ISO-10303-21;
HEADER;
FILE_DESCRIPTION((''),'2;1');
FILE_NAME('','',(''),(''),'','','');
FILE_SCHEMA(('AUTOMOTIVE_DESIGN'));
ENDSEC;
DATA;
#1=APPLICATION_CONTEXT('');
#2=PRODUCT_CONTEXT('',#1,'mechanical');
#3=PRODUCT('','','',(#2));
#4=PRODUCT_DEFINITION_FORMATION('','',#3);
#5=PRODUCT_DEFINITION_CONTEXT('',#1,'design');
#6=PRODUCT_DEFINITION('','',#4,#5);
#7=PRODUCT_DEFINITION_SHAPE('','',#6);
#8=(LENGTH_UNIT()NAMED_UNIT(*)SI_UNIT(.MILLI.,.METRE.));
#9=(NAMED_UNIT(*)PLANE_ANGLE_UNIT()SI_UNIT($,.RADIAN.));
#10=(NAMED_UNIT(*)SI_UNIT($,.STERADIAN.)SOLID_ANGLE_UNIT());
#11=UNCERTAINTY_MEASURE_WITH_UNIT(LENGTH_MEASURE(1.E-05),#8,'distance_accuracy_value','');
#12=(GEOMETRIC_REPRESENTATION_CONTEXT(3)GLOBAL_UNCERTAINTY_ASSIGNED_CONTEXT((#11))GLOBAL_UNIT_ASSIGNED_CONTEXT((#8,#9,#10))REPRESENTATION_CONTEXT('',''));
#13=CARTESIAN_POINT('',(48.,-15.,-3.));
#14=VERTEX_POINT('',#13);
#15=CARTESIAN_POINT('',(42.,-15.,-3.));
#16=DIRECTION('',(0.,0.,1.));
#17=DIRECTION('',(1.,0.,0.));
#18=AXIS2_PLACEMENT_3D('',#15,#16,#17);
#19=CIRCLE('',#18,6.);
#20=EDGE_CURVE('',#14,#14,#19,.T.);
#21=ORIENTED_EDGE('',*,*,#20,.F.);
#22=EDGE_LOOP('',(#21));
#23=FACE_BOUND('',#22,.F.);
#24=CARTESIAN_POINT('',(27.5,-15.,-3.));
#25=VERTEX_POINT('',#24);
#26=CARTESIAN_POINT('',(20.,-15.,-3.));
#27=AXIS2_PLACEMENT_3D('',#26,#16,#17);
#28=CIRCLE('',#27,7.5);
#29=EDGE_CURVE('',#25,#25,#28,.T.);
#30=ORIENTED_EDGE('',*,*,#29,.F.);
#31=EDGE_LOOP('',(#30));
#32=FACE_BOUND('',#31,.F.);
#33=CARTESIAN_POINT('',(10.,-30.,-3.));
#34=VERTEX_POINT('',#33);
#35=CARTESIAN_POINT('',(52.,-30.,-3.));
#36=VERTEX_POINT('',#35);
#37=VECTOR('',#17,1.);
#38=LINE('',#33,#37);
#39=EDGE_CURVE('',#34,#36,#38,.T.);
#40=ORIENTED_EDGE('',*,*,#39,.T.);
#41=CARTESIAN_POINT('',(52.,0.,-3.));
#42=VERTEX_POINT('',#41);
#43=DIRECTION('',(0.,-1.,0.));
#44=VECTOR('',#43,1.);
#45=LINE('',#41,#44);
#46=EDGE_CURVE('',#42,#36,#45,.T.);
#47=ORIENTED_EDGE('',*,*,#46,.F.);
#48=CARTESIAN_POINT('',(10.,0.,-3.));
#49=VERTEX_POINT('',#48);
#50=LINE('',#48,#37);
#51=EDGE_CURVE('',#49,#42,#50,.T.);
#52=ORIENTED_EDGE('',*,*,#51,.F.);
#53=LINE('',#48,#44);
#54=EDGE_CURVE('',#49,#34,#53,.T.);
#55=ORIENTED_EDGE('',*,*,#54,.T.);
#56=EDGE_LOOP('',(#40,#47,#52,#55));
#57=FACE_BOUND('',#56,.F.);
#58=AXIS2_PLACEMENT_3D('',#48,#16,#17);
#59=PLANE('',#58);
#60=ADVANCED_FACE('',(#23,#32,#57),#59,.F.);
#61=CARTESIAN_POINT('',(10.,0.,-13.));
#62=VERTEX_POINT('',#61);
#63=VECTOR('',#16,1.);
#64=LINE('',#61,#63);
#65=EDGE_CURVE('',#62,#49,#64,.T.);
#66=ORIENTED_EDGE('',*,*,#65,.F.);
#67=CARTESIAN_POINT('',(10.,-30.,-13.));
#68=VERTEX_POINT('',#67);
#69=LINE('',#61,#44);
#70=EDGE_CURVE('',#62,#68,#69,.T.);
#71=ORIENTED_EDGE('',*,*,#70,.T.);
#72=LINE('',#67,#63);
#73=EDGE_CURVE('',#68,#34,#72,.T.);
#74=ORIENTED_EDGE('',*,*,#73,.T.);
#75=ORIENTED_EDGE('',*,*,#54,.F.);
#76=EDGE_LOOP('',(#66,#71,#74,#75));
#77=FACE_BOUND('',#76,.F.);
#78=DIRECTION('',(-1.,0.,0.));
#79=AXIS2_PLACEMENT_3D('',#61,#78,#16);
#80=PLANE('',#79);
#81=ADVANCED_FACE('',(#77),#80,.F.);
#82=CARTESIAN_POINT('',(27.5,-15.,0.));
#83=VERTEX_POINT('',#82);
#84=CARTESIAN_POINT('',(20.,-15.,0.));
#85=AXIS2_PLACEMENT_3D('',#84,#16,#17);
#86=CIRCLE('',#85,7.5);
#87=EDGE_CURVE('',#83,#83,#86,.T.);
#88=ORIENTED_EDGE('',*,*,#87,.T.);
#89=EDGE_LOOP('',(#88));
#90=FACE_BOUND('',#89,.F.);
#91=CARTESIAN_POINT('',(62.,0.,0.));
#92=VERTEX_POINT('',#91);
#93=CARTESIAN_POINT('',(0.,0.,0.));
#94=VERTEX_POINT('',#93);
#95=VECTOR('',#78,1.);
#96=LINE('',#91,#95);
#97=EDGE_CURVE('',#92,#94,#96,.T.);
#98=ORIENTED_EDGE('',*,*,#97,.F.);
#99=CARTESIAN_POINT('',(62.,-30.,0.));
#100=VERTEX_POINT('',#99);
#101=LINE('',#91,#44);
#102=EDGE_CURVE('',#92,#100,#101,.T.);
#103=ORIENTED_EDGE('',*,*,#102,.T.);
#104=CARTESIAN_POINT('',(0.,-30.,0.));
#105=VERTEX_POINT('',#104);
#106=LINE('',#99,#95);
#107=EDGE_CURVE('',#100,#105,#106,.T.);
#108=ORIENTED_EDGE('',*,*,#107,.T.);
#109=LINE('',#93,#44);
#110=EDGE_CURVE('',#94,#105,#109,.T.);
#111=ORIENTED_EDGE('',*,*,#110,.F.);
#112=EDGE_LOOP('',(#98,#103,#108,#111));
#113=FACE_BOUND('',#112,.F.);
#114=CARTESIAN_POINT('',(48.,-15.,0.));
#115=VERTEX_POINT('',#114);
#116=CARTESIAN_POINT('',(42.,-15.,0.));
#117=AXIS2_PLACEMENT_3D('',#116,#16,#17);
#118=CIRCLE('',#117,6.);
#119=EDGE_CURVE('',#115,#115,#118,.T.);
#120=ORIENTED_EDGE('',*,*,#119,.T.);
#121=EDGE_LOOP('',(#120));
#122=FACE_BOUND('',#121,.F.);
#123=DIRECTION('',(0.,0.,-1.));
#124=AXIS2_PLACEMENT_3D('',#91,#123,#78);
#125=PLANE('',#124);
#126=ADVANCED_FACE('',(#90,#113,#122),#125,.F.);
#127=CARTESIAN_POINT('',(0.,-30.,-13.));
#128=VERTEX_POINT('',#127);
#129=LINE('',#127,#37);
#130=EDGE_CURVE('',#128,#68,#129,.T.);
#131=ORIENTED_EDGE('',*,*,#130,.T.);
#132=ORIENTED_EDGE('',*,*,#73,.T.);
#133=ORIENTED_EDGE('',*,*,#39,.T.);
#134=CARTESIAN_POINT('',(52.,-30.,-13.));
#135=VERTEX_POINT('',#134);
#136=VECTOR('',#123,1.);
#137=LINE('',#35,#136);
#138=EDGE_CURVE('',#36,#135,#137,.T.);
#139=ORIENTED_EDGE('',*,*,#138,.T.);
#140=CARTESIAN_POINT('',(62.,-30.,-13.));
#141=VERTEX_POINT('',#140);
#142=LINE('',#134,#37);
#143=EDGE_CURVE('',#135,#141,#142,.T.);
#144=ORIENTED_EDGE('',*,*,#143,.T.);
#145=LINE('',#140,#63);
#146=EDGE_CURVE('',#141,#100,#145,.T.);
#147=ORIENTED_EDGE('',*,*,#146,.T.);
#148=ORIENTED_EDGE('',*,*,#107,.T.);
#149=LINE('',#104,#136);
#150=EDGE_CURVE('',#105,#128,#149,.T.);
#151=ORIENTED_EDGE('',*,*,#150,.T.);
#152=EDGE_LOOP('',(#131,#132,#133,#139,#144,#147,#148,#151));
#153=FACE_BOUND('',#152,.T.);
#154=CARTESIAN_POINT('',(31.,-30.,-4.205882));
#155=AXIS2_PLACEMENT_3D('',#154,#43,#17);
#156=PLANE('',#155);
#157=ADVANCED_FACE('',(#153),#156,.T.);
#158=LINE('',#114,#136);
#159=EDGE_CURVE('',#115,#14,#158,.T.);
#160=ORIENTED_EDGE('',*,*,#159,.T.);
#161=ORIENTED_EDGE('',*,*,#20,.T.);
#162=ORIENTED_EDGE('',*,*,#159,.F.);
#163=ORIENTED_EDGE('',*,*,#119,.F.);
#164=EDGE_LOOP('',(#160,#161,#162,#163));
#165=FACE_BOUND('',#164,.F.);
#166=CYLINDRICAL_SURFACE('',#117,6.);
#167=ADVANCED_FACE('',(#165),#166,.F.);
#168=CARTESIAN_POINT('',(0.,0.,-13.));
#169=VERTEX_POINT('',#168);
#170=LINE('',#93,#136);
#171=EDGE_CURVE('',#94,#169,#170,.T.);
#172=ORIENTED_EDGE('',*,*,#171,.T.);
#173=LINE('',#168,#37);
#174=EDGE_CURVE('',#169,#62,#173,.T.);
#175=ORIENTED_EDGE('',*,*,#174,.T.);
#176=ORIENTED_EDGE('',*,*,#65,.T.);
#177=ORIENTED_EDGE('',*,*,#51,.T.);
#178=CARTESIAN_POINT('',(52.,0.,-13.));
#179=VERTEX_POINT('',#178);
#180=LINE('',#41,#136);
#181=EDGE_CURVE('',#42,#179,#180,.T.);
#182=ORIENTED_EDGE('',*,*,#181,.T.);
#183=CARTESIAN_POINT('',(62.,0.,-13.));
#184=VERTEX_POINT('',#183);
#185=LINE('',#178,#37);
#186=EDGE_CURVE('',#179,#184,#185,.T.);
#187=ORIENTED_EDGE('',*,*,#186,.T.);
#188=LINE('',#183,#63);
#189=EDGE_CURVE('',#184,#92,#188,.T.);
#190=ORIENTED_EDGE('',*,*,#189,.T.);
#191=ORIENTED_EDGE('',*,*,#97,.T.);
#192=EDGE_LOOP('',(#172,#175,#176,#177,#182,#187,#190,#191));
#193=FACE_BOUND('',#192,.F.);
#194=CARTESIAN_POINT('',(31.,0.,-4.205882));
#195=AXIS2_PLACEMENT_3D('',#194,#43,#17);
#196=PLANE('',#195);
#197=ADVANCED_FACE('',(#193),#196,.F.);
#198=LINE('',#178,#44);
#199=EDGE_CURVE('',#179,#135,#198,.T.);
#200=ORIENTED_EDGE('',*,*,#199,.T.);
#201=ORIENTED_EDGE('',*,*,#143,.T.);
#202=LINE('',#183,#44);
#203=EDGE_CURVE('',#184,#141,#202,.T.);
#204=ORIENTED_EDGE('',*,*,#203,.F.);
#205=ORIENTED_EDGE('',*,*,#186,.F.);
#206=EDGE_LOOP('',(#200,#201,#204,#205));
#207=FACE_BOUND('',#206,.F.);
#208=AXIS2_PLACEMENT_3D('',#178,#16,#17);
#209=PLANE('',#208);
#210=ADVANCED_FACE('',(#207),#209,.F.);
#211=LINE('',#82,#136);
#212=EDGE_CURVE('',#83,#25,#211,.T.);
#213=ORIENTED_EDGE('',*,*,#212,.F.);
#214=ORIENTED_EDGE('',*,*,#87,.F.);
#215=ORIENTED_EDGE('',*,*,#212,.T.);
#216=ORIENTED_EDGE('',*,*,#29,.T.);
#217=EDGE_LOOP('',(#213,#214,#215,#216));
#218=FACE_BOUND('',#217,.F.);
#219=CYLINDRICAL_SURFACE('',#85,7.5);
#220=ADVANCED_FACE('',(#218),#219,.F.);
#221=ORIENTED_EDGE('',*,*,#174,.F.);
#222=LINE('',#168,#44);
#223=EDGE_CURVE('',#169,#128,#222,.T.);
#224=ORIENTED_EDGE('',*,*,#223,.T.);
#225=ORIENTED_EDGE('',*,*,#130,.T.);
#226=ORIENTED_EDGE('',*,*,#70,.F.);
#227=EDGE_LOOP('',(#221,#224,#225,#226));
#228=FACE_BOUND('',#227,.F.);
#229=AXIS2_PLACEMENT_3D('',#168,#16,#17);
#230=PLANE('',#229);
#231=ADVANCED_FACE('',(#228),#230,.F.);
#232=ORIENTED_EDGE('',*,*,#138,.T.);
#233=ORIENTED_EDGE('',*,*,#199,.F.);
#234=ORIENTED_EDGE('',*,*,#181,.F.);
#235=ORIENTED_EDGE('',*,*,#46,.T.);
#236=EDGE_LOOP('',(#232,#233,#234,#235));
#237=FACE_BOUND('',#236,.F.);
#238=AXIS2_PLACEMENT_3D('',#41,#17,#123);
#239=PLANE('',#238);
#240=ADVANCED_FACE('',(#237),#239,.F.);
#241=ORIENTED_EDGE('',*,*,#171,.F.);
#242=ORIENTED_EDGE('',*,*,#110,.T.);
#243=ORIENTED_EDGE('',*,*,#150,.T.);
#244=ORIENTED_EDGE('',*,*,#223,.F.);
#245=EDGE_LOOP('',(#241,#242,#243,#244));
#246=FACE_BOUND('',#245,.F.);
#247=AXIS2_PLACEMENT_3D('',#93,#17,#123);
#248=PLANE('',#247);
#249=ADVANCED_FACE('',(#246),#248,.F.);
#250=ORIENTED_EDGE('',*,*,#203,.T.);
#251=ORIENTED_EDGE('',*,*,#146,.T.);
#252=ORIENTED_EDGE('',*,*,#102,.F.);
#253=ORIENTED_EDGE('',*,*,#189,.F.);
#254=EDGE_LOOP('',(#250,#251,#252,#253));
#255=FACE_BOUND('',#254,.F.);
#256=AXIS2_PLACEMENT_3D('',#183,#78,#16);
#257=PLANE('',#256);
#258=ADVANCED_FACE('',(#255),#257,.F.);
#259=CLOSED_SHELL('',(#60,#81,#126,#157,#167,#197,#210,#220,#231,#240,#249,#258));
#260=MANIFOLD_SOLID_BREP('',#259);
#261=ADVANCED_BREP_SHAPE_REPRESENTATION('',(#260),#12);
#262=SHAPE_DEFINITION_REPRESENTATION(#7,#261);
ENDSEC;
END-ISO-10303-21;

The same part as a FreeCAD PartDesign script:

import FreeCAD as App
import Part
import Sketcher
Q = App.Units.Quantity

doc = App.newDocument("Part")
params = doc.addObject("Spreadsheet::Sheet", "Params")
for row, (alias, value) in enumerate([
    ("sketch1_width", "62 mm"),
    ("sketch1_width2", "10 mm"),
    ("sketch1_height", "13 mm"),
    ("pad1_length", "30 mm"),
    ("sketch2_diameter", "15 mm"),
    ("sketch2_diameter2", "12 mm"),
], start=1):
    params.set(f"A{row}", alias)
    params.set(f"B{row}", "=" + value)
    params.setAlias(f"B{row}", alias)

body = doc.addObject("PartDesign::Body", "Body")

# Sketch on XZ plane
sketch1 = body.newObject("Sketcher::SketchObject", "Sketch")
sketch1.AttachmentSupport = (doc.getObject("XZ_Plane"), [""])
sketch1.MapMode = "FlatFace"
sketch1.addGeometry([
    Part.LineSegment(App.Vector(62, 0, 0), App.Vector(0, 0, 0)),  # 0
    Part.LineSegment(App.Vector(0, 0, 0), App.Vector(0, -13, 0)),  # 1
    Part.LineSegment(App.Vector(0, -13, 0), App.Vector(10, -13, 0)),  # 2
    Part.LineSegment(App.Vector(10, -13, 0), App.Vector(10, -3, 0)),  # 3
    Part.LineSegment(App.Vector(10, -3, 0), App.Vector(52, -3, 0)),  # 4
    Part.LineSegment(App.Vector(52, -3, 0), App.Vector(52, -13, 0)),  # 5
    Part.LineSegment(App.Vector(52, -13, 0), App.Vector(62, -13, 0)),  # 6
    Part.LineSegment(App.Vector(62, -13, 0), App.Vector(62, 0, 0)),  # 7
], False)
sketch1.addConstraint([
    Sketcher.Constraint("Coincident", 0, 2, 1, 1),
    Sketcher.Constraint("Coincident", 1, 2, 2, 1),
    Sketcher.Constraint("Coincident", 2, 2, 3, 1),
    Sketcher.Constraint("Coincident", 3, 2, 4, 1),
    Sketcher.Constraint("Coincident", 4, 2, 5, 1),
    Sketcher.Constraint("Coincident", 5, 2, 6, 1),
    Sketcher.Constraint("Coincident", 6, 2, 7, 1),
    Sketcher.Constraint("Coincident", 7, 2, 0, 1),
    Sketcher.Constraint("Horizontal", 0),
    Sketcher.Constraint("Vertical", 1),
    Sketcher.Constraint("Horizontal", 2),
    Sketcher.Constraint("Vertical", 3),
    Sketcher.Constraint("Horizontal", 4),
    Sketcher.Constraint("Vertical", 5),
    Sketcher.Constraint("Horizontal", 6),
    Sketcher.Constraint("Vertical", 7),
    Sketcher.Constraint("Coincident", 0, 2, -1, 1),
    Sketcher.Constraint("Horizontal", 2, 2, 5, 2),
    Sketcher.Constraint("Equal", 2, 6),
    Sketcher.Constraint("Equal", 6, 3),
    Sketcher.Constraint("DistanceX", 0, 2, 0, 1, Q("62 mm")),
    Sketcher.Constraint("DistanceX", 2, 1, 2, 2, Q("10 mm")),
    Sketcher.Constraint("DistanceY", 1, 2, 1, 1, Q("13 mm")),
])
sketch1.setExpression("Constraints[20]", "Params.sketch1_width")
sketch1.setExpression("Constraints[21]", "Params.sketch1_width2")
sketch1.setExpression("Constraints[22]", "Params.sketch1_height")
pad1 = body.newObject("PartDesign::Pad", "Pad")
pad1.Profile = sketch1
pad1.setExpression("Length", "Params.pad1_length")

# Sketch on XY plane
sketch2 = body.newObject("Sketcher::SketchObject", "Sketch001")
sketch2.AttachmentSupport = (doc.getObject("XY_Plane"), [""])
sketch2.MapMode = "FlatFace"
sketch2.addGeometry([
    Part.Circle(App.Vector(20, -15, 0), App.Vector(0, 0, 1), 8),
    Part.Circle(App.Vector(42, -15, 0), App.Vector(0, 0, 1), 6),
], False)
sketch2.addConstraint([
    Sketcher.Constraint("Horizontal", 0, 3, 1, 3),
    Sketcher.Constraint("Diameter", 0, Q("15 mm")),
    Sketcher.Constraint("Diameter", 1, Q("12 mm")),
    Sketcher.Constraint("DistanceX", -1, 1, 0, 3, Q("20 mm")),
    Sketcher.Constraint("DistanceY", 0, 3, -1, 1, Q("15 mm")),
    Sketcher.Constraint("DistanceX", -1, 1, 1, 3, Q("42 mm")),
])
sketch2.setExpression("Constraints[1]", "Params.sketch2_diameter")
sketch2.setExpression("Constraints[2]", "Params.sketch2_diameter2")
pocket1 = body.newObject("PartDesign::Pocket", "Pocket")
pocket1.Profile = sketch2
pocket1.Type = "ThroughAll"

doc.recompute()
